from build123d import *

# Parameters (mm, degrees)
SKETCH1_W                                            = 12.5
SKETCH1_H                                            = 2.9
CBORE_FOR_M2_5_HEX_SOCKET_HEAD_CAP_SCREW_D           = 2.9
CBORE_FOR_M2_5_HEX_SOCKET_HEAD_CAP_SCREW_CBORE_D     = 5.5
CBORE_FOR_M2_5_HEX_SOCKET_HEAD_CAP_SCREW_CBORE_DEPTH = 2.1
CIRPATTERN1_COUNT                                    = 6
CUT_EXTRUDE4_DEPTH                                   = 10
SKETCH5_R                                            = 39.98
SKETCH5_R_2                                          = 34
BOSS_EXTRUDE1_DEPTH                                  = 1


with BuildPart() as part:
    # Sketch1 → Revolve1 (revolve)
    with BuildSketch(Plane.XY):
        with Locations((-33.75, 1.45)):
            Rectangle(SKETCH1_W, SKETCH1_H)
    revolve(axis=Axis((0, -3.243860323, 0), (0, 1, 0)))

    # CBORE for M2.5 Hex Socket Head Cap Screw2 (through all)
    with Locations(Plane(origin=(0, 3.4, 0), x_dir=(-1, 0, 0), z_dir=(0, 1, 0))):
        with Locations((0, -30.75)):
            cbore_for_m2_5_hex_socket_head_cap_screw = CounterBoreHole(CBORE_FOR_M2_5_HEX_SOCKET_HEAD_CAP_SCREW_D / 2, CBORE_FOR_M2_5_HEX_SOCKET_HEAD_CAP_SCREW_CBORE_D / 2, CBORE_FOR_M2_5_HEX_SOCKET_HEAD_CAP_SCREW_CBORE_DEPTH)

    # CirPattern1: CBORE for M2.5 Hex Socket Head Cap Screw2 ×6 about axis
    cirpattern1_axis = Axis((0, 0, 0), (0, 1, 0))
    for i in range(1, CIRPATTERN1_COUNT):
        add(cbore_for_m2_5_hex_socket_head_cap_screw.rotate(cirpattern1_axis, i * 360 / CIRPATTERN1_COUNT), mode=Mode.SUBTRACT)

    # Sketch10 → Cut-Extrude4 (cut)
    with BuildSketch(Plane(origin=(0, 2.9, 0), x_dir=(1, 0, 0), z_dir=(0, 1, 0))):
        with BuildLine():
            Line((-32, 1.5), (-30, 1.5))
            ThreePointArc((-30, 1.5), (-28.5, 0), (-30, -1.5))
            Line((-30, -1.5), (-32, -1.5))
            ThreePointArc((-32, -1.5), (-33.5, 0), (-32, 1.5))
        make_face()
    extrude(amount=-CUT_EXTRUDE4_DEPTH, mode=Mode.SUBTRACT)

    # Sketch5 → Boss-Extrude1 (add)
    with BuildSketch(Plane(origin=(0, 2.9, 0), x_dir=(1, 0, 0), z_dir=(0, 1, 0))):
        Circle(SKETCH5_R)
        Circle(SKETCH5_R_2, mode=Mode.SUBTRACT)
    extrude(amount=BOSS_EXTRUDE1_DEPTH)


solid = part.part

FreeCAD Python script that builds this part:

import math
import FreeCAD as App
import Part
import Sketcher
from FreeCAD import Vector
Q = App.Units.Quantity

doc = App.newDocument("Part")
body = doc.addObject("PartDesign::Body", "Body")

# Sketch on XY plane
sketch1 = body.newObject("Sketcher::SketchObject", "Sketch")
sketch1.AttachmentSupport = (doc.getObject("XY_Plane"), [""])
sketch1.MapMode = "FlatFace"
sketch1.addGeometry([
    Part.LineSegment(Vector(-40, 2.9, 0), Vector(-40, 0, 0)),
    Part.LineSegment(Vector(-40, 0, 0), Vector(-27.5, 0, 0)),
    Part.LineSegment(Vector(-27.5, 0, 0), Vector(-27.5, 2.9, 0)),
    Part.LineSegment(Vector(-27.5, 2.9, 0), Vector(-40, 2.9, 0)),
], False)
sketch1.addConstraint([
    Sketcher.Constraint("Coincident", 0, 2, 1, 1),
    Sketcher.Constraint("Coincident", 1, 2, 2, 1),
    Sketcher.Constraint("Coincident", 2, 2, 3, 1),
    Sketcher.Constraint("Coincident", 3, 2, 0, 1),
    Sketcher.Constraint("Vertical", 0),
    Sketcher.Constraint("Horizontal", 1),
    Sketcher.Constraint("Vertical", 2),
    Sketcher.Constraint("Horizontal", 3),
    Sketcher.Constraint("PointOnObject", 0, 2, -1),
    Sketcher.Constraint("DistanceX", 1, 1, 1, 2, Q("12.5 mm")),
    Sketcher.Constraint("DistanceY", 0, 2, 0, 1, Q("2.9 mm")),
    Sketcher.Constraint("DistanceX", 0, 2, -1, 1, Q("40 mm")),
])
revolution = body.newObject("PartDesign::Revolution", "Revolution")
revolution.Profile = sketch1
revolution.ReferenceAxis = (sketch1, ["V_Axis"])
revolution.Angle = 360

# Sketch on XZ plane
sketch2 = body.newObject("Sketcher::SketchObject", "Sketch001")
sketch2.AttachmentSupport = (doc.getObject("XZ_Plane"), [""])
sketch2.MapMode = "FlatFace"
sketch2.AttachmentOffset = App.Placement(Vector(0, 0, -3.4), App.Rotation())
sketch2.addGeometry(Part.Circle(Vector(0, -30.8, 0), Vector(0, 0, 1), 1.4), False)
sketch2.addConstraint([
    Sketcher.Constraint("PointOnObject", 0, 3, -2),
    Sketcher.Constraint("Diameter", 0, Q("2.9 mm")),
    Sketcher.Constraint("DistanceY", 0, 3, -1, 1, Q("30.75 mm")),
])
doc.recompute()
hole = body.newObject("PartDesign::Hole", "Hole")
hole.Profile = sketch2
hole.ThreadType = "None"
hole.Diameter = 2.9
hole.DepthType = "ThroughAll"
hole.HoleCutType = "Counterbore"
hole.HoleCutDiameter = 5.5
hole.HoleCutDepth = 2.1
hole.Reversed = True
doc.recompute()

polarpattern = body.newObject("PartDesign::PolarPattern", "PolarPattern")
polarpattern.Originals = [hole]
polarpattern.Axis = (doc.getObject("Y_Axis"), [""])
polarpattern.Angle = 360
polarpattern.Occurrences = 6
body.Tip = polarpattern

# Sketch on XZ plane
sketch3 = body.newObject("Sketcher::SketchObject", "Sketch002")
sketch3.AttachmentSupport = (doc.getObject("XZ_Plane"), [""])
sketch3.MapMode = "FlatFace"
sketch3.AttachmentOffset = App.Placement(Vector(0, 0, -2.9), App.Rotation())
sketch3.addGeometry([
    Part.LineSegment(Vector(-30, -1.5, 0), Vector(-32, -1.5, 0)),
    Part.ArcOfCircle(Part.Circle(Vector(-32, 0, 0), Vector(0, 0, 1), 1.5), math.radians(90), math.radians(270)),
    Part.LineSegment(Vector(-32, 1.5, 0), Vector(-30, 1.5, 0)),
    Part.ArcOfCircle(Part.Circle(Vector(-30, 0, 0), Vector(0, 0, 1), 1.5), math.radians(-90), math.radians(90)),
], False)
sketch3.addConstraint([
    Sketcher.Constraint("Tangent", 0, 2, 1, 2),
    Sketcher.Constraint("Tangent", 1, 1, 2, 1),
    Sketcher.Constraint("Tangent", 2, 2, 3, 2),
    Sketcher.Constraint("Tangent", 3, 1, 0, 1),
    Sketcher.Constraint("Horizontal", 0),
    Sketcher.Constraint("Horizontal", 2),
    Sketcher.Constraint("PointOnObject", 1, 3, -1),
    Sketcher.Constraint("Radius", 1, Q("1.5 mm")),
    Sketcher.Constraint("DistanceX", 0, 2, 0, 1, Q("2 mm")),
    Sketcher.Constraint("DistanceX", 1, 3, -1, 1, Q("32 mm")),
])
pocket1 = body.newObject("PartDesign::Pocket", "Pocket")
pocket1.Profile = sketch3
pocket1.Length = 10
pocket1.Reversed = True

# Sketch on XZ plane
sketch4 = body.newObject("Sketcher::SketchObject", "Sketch003")
sketch4.AttachmentSupport = (doc.getObject("XZ_Plane"), [""])
sketch4.MapMode = "FlatFace"
sketch4.AttachmentOffset = App.Placement(Vector(0, 0, -2.9), App.Rotation())
sketch4.addGeometry([
    Part.Circle(Vector(0, 0, 0), Vector(0, 0, 1), 40),
    Part.Circle(Vector(0, 0, 0), Vector(0, 0, 1), 34),
], False)
sketch4.addConstraint([
    Sketcher.Constraint("Coincident", 0, 3, -1, 1),
    Sketcher.Constraint("Coincident", 1, 3, -1, 1),
    Sketcher.Constraint("Diameter", 1, Q("68 mm")),
    Sketcher.Constraint("Diameter", 0, Q("79.96 mm")),
])
pad1 = body.newObject("PartDesign::Pad", "Pad")
pad1.Profile = sketch4
pad1.Length = 1
pad1.Reversed = True

doc.recompute()
